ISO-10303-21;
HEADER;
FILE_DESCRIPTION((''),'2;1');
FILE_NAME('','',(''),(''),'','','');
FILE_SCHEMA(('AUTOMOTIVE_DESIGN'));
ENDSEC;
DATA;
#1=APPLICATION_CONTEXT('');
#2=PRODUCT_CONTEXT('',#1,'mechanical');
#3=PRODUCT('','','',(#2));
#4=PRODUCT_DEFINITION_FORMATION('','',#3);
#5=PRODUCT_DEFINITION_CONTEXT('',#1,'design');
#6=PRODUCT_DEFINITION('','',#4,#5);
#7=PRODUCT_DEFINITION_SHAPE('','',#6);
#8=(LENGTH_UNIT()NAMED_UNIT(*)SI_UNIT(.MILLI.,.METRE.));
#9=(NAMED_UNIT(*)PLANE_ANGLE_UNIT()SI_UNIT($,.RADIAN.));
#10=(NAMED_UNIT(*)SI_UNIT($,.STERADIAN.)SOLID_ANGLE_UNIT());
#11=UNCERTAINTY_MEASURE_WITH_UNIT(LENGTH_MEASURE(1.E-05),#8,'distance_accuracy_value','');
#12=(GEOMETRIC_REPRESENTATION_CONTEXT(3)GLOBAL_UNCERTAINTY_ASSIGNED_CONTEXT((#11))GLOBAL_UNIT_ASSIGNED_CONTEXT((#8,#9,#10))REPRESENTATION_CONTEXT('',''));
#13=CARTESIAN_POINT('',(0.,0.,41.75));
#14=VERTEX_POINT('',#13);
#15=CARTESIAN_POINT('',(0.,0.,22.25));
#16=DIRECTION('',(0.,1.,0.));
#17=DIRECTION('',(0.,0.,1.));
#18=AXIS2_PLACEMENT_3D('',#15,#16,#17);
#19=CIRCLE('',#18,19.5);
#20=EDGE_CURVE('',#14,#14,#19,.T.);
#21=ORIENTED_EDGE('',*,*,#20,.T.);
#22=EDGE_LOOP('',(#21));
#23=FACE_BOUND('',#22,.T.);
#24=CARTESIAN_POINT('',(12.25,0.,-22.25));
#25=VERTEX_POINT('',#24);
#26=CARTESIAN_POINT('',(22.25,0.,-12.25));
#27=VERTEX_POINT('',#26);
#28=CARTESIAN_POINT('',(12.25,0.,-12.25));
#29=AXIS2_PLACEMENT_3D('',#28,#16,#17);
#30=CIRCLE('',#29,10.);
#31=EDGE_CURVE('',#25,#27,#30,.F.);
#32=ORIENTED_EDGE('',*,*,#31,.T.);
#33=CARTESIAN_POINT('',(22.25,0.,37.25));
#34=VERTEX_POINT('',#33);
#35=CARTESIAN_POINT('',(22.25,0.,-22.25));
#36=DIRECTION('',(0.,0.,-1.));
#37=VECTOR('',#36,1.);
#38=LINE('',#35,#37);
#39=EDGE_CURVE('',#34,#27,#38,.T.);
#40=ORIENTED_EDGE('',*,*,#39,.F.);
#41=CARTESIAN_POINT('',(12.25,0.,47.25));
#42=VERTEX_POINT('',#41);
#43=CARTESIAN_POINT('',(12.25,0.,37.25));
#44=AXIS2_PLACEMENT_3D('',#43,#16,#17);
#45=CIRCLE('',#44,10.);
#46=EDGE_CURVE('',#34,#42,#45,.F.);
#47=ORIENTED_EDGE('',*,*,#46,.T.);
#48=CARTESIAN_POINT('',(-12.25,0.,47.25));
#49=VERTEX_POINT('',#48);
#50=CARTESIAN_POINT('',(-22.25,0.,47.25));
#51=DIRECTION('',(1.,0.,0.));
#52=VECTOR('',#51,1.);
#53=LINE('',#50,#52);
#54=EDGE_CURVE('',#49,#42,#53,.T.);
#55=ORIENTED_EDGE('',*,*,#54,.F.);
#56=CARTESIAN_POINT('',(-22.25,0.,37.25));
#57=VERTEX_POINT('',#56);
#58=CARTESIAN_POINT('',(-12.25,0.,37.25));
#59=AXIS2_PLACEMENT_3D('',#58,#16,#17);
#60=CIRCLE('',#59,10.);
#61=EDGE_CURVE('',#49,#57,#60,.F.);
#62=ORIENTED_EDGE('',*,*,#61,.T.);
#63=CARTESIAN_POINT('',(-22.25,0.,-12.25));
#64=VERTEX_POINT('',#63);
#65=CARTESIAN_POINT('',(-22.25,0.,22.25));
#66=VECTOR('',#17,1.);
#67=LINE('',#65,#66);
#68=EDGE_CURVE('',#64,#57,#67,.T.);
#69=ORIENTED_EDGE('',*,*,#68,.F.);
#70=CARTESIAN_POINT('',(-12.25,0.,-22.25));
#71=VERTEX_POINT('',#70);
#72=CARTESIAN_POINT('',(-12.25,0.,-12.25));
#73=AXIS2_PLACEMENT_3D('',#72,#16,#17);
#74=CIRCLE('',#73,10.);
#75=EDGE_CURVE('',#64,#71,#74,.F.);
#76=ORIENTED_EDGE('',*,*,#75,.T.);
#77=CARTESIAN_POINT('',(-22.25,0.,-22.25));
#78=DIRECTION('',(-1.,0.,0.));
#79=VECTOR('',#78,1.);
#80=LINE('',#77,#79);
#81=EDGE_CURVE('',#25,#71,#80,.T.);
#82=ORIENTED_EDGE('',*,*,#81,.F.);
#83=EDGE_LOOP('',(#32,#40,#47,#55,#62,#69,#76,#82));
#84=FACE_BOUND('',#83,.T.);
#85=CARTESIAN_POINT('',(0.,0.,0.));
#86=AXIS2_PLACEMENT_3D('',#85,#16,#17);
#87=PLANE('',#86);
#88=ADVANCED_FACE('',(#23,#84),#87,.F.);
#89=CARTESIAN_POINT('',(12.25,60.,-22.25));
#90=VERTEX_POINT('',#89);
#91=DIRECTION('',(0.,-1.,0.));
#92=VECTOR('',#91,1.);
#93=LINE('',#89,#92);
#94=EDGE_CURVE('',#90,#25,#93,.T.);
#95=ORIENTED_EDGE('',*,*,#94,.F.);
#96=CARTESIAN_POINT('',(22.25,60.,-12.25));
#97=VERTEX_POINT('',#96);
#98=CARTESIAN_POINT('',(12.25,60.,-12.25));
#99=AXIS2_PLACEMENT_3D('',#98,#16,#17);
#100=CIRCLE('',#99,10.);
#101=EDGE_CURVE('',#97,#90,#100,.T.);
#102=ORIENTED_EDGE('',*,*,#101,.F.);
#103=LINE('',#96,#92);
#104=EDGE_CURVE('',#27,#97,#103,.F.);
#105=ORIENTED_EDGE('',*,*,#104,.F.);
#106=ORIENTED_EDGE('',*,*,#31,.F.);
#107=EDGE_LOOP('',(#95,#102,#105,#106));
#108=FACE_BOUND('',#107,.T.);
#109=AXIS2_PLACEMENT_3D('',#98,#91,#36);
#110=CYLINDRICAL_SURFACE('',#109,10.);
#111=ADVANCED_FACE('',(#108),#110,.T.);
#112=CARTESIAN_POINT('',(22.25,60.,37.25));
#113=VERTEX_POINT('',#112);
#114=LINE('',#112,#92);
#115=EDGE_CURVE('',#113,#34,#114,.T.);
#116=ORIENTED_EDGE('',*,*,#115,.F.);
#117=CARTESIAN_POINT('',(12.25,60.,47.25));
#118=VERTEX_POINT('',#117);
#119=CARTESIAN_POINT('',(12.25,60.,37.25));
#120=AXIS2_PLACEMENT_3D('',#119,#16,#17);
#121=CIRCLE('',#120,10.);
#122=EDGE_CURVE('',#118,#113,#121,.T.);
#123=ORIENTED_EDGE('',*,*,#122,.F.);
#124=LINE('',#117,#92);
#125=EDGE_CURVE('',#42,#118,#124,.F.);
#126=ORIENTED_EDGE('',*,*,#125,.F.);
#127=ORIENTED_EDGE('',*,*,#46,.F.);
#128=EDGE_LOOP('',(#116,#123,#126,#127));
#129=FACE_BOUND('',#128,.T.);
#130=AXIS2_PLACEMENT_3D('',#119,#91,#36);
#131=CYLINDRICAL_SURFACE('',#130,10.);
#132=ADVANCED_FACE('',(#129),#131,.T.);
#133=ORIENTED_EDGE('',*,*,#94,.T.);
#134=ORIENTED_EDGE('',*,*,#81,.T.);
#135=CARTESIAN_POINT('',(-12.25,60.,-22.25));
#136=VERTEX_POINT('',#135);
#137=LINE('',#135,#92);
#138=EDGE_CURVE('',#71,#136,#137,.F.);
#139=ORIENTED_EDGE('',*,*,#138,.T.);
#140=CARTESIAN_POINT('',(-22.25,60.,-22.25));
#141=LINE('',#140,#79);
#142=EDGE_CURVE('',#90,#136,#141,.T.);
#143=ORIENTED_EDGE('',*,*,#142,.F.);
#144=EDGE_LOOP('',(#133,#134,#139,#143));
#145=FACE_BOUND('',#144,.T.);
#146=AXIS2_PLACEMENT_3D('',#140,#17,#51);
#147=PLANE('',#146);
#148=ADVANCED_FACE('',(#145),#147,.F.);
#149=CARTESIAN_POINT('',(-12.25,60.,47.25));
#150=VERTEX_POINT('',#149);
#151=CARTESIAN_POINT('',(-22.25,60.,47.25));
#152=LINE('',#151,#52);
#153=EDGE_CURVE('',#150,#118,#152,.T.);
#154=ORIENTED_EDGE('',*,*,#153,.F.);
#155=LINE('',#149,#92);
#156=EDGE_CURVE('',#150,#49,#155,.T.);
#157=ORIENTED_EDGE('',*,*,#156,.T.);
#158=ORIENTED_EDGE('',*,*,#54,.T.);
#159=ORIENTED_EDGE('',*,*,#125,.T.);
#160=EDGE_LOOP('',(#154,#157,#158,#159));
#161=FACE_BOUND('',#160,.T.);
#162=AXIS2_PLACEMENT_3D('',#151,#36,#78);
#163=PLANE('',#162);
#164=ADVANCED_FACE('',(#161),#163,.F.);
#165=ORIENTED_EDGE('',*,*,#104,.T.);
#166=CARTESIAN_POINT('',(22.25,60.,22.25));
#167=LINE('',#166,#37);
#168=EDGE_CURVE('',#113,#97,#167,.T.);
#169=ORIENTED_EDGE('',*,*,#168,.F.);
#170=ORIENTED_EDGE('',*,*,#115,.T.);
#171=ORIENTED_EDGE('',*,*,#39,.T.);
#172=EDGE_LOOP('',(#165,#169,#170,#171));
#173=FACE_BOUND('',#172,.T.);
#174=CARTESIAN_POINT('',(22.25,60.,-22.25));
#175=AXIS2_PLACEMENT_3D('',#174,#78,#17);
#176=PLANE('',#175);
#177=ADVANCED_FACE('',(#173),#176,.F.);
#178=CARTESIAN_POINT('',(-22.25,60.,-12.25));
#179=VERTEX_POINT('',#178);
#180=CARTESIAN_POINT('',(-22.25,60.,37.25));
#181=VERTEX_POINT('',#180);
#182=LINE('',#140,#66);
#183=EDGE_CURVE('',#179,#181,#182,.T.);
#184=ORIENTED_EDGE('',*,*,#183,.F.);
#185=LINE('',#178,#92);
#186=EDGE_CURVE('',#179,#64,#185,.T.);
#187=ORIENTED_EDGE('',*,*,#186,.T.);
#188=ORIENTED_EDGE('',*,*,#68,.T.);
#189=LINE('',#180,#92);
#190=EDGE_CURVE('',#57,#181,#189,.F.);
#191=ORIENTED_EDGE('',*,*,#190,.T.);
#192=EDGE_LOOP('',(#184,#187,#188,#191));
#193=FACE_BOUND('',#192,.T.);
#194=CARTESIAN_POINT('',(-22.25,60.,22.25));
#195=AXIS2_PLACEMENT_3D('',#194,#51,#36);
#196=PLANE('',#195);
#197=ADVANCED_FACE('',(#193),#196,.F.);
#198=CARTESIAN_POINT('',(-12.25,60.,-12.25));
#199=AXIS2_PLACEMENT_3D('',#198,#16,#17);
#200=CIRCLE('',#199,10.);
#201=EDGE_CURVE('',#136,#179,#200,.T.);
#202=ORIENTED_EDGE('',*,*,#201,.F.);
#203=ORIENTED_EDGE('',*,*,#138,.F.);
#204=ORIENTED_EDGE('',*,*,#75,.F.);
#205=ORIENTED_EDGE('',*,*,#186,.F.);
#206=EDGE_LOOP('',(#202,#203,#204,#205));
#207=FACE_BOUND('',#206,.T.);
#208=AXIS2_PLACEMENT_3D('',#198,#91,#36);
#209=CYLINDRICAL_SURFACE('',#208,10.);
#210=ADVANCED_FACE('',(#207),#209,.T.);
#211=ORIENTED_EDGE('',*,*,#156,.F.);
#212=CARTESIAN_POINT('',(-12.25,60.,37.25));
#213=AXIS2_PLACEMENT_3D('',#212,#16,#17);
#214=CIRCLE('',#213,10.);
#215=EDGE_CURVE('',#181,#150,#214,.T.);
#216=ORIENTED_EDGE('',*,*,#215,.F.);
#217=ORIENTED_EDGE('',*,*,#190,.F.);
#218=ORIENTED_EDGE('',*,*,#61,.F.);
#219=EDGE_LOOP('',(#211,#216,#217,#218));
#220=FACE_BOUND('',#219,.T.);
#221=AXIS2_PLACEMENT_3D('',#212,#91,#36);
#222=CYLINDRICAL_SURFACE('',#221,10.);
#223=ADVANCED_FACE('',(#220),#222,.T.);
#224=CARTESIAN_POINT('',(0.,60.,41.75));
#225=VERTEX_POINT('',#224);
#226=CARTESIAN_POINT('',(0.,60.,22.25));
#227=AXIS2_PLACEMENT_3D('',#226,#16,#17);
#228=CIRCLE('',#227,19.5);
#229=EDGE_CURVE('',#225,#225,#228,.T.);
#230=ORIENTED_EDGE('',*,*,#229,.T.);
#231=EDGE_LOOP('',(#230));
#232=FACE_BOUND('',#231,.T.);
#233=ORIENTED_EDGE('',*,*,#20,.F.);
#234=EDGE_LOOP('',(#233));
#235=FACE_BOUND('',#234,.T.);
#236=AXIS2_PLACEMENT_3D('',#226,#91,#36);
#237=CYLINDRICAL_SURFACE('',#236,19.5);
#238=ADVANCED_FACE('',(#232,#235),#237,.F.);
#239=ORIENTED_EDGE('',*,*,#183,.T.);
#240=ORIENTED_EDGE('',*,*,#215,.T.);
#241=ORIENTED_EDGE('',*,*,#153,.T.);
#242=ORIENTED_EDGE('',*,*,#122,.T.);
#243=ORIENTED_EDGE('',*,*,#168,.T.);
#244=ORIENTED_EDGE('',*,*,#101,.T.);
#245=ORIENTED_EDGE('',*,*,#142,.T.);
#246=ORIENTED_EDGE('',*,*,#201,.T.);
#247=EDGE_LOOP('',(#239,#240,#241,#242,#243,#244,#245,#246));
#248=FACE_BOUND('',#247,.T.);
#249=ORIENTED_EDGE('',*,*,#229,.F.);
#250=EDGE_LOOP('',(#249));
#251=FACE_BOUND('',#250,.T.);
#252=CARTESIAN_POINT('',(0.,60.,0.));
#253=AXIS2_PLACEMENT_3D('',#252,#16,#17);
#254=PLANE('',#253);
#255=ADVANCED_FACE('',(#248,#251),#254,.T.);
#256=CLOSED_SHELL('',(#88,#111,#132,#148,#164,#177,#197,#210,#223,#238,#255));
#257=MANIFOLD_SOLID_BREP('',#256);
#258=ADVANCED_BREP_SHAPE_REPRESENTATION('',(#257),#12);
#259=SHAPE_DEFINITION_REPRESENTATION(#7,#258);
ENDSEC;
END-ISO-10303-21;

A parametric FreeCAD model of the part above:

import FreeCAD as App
import Part
import Sketcher
from FreeCAD import Vector
Q = App.Units.Quantity


def edges_at(feature, points):
    """Names of the edges that pass closest to the given points."""
    edges = feature.Shape.Edges
    near = lambda p: min(range(len(edges)), key=lambda i: edges[i].distToShape(Part.Vertex(*p))[0])
    return sorted({f"Edge{near(p) + 1}" for p in points})

doc = App.newDocument("Part")
body = doc.addObject("PartDesign::Body", "Body")

# Sketch on XZ plane
sketch1 = doc.addObject("Sketcher::SketchObject", "Sketch")
body.addObject(sketch1)
sketch1.AttachmentSupport = (doc.XZ_Plane, [""])
sketch1.MapMode = "FlatFace"
sketch1.addGeometry([
    Part.LineSegment(Vector(22, -22, 0), Vector(-22, -22, 0)),  # 0
    Part.LineSegment(Vector(-22, -22, 0), Vector(-22, 47, 0)),  # 1
    Part.LineSegment(Vector(-22, 47, 0), Vector(22, 47, 0)),  # 2
    Part.LineSegment(Vector(22, 47, 0), Vector(22, -22, 0)),  # 3
    Part.Circle(Vector(0, 22, 0), Vector(0, 0, 1), 20),  # 4
], False)
sketch1.addConstraint([
    Sketcher.Constraint("Coincident", 0, 2, 1, 1),
    Sketcher.Constraint("Coincident", 1, 2, 2, 1),
    Sketcher.Constraint("Coincident", 2, 2, 3, 1),
    Sketcher.Constraint("Coincident", 3, 2, 0, 1),
    Sketcher.Constraint("Horizontal", 0),
    Sketcher.Constraint("Vertical", 1),
    Sketcher.Constraint("Horizontal", 2),
    Sketcher.Constraint("Vertical", 3),
    Sketcher.Constraint("PointOnObject", 4, 3, -2),
    Sketcher.Constraint("Diameter", 4, Q("39 mm")),
    Sketcher.Constraint("DistanceX", 0, 2, 0, 1, Q("44.5 mm")),
    Sketcher.Constraint("DistanceY", 1, 1, 1, 2, Q("69.5 mm")),
    Sketcher.Constraint("DistanceY", 4, 3, 1, 2, Q("25 mm")),
    Sketcher.Constraint("DistanceY", -1, 1, 4, 3, Q("22.25 mm")),
    Sketcher.Constraint("DistanceX", 0, 2, -1, 1, Q("22.25 mm")),
])
pad1 = doc.addObject("PartDesign::Pad", "Pad")
body.addObject(pad1)
pad1.Profile = sketch1
pad1.Length = 60
pad1.Reversed = True
doc.recompute()

fillet = doc.addObject("PartDesign::Fillet", "Fillet")
body.addObject(fillet)
fillet.Base = (pad1, edges_at(pad1, [
    (22.25, 30, 47.25),
    (-22.25, 30, 47.25),
    (-22.25, 30, -22.25),
    (22.25, 30, -22.25),
]))
fillet.Radius = 10

doc.recompute()
